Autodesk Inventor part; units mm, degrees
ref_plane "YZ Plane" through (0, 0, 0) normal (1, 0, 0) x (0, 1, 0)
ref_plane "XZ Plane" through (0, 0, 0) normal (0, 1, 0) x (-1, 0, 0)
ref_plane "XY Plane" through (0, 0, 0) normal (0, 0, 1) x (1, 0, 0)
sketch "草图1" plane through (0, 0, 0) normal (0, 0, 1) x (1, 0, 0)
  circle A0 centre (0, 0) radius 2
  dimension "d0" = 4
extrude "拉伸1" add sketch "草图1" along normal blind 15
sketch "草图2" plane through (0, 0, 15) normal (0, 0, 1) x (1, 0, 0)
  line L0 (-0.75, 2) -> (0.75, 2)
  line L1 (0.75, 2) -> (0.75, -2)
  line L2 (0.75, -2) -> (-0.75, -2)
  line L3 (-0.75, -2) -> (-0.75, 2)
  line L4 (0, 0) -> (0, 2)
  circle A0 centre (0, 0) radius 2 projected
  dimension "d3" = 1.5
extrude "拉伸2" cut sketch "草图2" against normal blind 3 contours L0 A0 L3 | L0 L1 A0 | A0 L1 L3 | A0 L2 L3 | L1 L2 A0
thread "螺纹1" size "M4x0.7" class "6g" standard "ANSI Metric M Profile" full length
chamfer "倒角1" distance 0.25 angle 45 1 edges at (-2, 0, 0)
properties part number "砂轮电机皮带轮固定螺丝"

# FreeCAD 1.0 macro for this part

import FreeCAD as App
import Part
import Sketcher
from FreeCAD import Vector


def edges_at(feature, points):
    """Names of the edges that pass closest to the given points."""
    edges = feature.Shape.Edges
    near = lambda p: min(range(len(edges)), key=lambda i: edges[i].distToShape(Part.Vertex(*p))[0])
    return sorted({f"Edge{near(p) + 1}" for p in points})

doc = App.newDocument("Part")
body = doc.addObject("PartDesign::Body", "Body")

sketch1 = body.newObject("Sketcher::SketchObject", "Sketch")
sketch1.AttachmentSupport = (doc.getObject("XY_Plane"), [""])
sketch1.MapMode = "FlatFace"
sketch1.addGeometry(Part.Circle(Vector(0, 0, 0), Vector(0, 0, 1), 2), False)
sketch1.addConstraint([
    Sketcher.Constraint("Coincident", 0, 3, -1, 1),
    Sketcher.Constraint("Diameter", 0, 4.0),
])
pad1 = body.newObject("PartDesign::Pad", "Pad")
pad1.Profile = sketch1
pad1.Length = 15

sketch2 = body.newObject("Sketcher::SketchObject", "Sketch001")
sketch2.AttachmentSupport = (doc.getObject("XY_Plane"), [""])
sketch2.MapMode = "FlatFace"
sketch2.AttachmentOffset = App.Placement(Vector(0, 0, 15), App.Rotation())
sketch2.addGeometry([
    Part.LineSegment(Vector(-0.8, 2, 0), Vector(-0.8, -2, 0)),
    Part.LineSegment(Vector(-0.8, -2, 0), Vector(0.8, -2, 0)),
    Part.LineSegment(Vector(0.8, -2, 0), Vector(0.8, 2, 0)),
    Part.LineSegment(Vector(0.8, 2, 0), Vector(-0.8, 2, 0)),
], False)
sketch2.addConstraint([
    Sketcher.Constraint("Coincident", 0, 2, 1, 1),
    Sketcher.Constraint("Coincident", 1, 2, 2, 1),
    Sketcher.Constraint("Coincident", 2, 2, 3, 1),
    Sketcher.Constraint("Coincident", 3, 2, 0, 1),
    Sketcher.Constraint("Vertical", 0),
    Sketcher.Constraint("Horizontal", 1),
    Sketcher.Constraint("Vertical", 2),
    Sketcher.Constraint("Horizontal", 3),
    Sketcher.Constraint("Symmetric", 0, 2, 2, 2, -1, 1),
    Sketcher.Constraint("DistanceX", 1, 1, 1, 2, 1.5),
    Sketcher.Constraint("DistanceY", 0, 2, 0, 1, 4.0),
])
pocket1 = body.newObject("PartDesign::Pocket", "Pocket")
pocket1.Profile = sketch2
pocket1.Length = 3
doc.recompute()

chamfer = body.newObject("PartDesign::Chamfer", "Chamfer")
chamfer.Base = (pocket1, edges_at(pocket1, [(-2, 0, 0)]))
chamfer.Size = 0.25

doc.recompute()
